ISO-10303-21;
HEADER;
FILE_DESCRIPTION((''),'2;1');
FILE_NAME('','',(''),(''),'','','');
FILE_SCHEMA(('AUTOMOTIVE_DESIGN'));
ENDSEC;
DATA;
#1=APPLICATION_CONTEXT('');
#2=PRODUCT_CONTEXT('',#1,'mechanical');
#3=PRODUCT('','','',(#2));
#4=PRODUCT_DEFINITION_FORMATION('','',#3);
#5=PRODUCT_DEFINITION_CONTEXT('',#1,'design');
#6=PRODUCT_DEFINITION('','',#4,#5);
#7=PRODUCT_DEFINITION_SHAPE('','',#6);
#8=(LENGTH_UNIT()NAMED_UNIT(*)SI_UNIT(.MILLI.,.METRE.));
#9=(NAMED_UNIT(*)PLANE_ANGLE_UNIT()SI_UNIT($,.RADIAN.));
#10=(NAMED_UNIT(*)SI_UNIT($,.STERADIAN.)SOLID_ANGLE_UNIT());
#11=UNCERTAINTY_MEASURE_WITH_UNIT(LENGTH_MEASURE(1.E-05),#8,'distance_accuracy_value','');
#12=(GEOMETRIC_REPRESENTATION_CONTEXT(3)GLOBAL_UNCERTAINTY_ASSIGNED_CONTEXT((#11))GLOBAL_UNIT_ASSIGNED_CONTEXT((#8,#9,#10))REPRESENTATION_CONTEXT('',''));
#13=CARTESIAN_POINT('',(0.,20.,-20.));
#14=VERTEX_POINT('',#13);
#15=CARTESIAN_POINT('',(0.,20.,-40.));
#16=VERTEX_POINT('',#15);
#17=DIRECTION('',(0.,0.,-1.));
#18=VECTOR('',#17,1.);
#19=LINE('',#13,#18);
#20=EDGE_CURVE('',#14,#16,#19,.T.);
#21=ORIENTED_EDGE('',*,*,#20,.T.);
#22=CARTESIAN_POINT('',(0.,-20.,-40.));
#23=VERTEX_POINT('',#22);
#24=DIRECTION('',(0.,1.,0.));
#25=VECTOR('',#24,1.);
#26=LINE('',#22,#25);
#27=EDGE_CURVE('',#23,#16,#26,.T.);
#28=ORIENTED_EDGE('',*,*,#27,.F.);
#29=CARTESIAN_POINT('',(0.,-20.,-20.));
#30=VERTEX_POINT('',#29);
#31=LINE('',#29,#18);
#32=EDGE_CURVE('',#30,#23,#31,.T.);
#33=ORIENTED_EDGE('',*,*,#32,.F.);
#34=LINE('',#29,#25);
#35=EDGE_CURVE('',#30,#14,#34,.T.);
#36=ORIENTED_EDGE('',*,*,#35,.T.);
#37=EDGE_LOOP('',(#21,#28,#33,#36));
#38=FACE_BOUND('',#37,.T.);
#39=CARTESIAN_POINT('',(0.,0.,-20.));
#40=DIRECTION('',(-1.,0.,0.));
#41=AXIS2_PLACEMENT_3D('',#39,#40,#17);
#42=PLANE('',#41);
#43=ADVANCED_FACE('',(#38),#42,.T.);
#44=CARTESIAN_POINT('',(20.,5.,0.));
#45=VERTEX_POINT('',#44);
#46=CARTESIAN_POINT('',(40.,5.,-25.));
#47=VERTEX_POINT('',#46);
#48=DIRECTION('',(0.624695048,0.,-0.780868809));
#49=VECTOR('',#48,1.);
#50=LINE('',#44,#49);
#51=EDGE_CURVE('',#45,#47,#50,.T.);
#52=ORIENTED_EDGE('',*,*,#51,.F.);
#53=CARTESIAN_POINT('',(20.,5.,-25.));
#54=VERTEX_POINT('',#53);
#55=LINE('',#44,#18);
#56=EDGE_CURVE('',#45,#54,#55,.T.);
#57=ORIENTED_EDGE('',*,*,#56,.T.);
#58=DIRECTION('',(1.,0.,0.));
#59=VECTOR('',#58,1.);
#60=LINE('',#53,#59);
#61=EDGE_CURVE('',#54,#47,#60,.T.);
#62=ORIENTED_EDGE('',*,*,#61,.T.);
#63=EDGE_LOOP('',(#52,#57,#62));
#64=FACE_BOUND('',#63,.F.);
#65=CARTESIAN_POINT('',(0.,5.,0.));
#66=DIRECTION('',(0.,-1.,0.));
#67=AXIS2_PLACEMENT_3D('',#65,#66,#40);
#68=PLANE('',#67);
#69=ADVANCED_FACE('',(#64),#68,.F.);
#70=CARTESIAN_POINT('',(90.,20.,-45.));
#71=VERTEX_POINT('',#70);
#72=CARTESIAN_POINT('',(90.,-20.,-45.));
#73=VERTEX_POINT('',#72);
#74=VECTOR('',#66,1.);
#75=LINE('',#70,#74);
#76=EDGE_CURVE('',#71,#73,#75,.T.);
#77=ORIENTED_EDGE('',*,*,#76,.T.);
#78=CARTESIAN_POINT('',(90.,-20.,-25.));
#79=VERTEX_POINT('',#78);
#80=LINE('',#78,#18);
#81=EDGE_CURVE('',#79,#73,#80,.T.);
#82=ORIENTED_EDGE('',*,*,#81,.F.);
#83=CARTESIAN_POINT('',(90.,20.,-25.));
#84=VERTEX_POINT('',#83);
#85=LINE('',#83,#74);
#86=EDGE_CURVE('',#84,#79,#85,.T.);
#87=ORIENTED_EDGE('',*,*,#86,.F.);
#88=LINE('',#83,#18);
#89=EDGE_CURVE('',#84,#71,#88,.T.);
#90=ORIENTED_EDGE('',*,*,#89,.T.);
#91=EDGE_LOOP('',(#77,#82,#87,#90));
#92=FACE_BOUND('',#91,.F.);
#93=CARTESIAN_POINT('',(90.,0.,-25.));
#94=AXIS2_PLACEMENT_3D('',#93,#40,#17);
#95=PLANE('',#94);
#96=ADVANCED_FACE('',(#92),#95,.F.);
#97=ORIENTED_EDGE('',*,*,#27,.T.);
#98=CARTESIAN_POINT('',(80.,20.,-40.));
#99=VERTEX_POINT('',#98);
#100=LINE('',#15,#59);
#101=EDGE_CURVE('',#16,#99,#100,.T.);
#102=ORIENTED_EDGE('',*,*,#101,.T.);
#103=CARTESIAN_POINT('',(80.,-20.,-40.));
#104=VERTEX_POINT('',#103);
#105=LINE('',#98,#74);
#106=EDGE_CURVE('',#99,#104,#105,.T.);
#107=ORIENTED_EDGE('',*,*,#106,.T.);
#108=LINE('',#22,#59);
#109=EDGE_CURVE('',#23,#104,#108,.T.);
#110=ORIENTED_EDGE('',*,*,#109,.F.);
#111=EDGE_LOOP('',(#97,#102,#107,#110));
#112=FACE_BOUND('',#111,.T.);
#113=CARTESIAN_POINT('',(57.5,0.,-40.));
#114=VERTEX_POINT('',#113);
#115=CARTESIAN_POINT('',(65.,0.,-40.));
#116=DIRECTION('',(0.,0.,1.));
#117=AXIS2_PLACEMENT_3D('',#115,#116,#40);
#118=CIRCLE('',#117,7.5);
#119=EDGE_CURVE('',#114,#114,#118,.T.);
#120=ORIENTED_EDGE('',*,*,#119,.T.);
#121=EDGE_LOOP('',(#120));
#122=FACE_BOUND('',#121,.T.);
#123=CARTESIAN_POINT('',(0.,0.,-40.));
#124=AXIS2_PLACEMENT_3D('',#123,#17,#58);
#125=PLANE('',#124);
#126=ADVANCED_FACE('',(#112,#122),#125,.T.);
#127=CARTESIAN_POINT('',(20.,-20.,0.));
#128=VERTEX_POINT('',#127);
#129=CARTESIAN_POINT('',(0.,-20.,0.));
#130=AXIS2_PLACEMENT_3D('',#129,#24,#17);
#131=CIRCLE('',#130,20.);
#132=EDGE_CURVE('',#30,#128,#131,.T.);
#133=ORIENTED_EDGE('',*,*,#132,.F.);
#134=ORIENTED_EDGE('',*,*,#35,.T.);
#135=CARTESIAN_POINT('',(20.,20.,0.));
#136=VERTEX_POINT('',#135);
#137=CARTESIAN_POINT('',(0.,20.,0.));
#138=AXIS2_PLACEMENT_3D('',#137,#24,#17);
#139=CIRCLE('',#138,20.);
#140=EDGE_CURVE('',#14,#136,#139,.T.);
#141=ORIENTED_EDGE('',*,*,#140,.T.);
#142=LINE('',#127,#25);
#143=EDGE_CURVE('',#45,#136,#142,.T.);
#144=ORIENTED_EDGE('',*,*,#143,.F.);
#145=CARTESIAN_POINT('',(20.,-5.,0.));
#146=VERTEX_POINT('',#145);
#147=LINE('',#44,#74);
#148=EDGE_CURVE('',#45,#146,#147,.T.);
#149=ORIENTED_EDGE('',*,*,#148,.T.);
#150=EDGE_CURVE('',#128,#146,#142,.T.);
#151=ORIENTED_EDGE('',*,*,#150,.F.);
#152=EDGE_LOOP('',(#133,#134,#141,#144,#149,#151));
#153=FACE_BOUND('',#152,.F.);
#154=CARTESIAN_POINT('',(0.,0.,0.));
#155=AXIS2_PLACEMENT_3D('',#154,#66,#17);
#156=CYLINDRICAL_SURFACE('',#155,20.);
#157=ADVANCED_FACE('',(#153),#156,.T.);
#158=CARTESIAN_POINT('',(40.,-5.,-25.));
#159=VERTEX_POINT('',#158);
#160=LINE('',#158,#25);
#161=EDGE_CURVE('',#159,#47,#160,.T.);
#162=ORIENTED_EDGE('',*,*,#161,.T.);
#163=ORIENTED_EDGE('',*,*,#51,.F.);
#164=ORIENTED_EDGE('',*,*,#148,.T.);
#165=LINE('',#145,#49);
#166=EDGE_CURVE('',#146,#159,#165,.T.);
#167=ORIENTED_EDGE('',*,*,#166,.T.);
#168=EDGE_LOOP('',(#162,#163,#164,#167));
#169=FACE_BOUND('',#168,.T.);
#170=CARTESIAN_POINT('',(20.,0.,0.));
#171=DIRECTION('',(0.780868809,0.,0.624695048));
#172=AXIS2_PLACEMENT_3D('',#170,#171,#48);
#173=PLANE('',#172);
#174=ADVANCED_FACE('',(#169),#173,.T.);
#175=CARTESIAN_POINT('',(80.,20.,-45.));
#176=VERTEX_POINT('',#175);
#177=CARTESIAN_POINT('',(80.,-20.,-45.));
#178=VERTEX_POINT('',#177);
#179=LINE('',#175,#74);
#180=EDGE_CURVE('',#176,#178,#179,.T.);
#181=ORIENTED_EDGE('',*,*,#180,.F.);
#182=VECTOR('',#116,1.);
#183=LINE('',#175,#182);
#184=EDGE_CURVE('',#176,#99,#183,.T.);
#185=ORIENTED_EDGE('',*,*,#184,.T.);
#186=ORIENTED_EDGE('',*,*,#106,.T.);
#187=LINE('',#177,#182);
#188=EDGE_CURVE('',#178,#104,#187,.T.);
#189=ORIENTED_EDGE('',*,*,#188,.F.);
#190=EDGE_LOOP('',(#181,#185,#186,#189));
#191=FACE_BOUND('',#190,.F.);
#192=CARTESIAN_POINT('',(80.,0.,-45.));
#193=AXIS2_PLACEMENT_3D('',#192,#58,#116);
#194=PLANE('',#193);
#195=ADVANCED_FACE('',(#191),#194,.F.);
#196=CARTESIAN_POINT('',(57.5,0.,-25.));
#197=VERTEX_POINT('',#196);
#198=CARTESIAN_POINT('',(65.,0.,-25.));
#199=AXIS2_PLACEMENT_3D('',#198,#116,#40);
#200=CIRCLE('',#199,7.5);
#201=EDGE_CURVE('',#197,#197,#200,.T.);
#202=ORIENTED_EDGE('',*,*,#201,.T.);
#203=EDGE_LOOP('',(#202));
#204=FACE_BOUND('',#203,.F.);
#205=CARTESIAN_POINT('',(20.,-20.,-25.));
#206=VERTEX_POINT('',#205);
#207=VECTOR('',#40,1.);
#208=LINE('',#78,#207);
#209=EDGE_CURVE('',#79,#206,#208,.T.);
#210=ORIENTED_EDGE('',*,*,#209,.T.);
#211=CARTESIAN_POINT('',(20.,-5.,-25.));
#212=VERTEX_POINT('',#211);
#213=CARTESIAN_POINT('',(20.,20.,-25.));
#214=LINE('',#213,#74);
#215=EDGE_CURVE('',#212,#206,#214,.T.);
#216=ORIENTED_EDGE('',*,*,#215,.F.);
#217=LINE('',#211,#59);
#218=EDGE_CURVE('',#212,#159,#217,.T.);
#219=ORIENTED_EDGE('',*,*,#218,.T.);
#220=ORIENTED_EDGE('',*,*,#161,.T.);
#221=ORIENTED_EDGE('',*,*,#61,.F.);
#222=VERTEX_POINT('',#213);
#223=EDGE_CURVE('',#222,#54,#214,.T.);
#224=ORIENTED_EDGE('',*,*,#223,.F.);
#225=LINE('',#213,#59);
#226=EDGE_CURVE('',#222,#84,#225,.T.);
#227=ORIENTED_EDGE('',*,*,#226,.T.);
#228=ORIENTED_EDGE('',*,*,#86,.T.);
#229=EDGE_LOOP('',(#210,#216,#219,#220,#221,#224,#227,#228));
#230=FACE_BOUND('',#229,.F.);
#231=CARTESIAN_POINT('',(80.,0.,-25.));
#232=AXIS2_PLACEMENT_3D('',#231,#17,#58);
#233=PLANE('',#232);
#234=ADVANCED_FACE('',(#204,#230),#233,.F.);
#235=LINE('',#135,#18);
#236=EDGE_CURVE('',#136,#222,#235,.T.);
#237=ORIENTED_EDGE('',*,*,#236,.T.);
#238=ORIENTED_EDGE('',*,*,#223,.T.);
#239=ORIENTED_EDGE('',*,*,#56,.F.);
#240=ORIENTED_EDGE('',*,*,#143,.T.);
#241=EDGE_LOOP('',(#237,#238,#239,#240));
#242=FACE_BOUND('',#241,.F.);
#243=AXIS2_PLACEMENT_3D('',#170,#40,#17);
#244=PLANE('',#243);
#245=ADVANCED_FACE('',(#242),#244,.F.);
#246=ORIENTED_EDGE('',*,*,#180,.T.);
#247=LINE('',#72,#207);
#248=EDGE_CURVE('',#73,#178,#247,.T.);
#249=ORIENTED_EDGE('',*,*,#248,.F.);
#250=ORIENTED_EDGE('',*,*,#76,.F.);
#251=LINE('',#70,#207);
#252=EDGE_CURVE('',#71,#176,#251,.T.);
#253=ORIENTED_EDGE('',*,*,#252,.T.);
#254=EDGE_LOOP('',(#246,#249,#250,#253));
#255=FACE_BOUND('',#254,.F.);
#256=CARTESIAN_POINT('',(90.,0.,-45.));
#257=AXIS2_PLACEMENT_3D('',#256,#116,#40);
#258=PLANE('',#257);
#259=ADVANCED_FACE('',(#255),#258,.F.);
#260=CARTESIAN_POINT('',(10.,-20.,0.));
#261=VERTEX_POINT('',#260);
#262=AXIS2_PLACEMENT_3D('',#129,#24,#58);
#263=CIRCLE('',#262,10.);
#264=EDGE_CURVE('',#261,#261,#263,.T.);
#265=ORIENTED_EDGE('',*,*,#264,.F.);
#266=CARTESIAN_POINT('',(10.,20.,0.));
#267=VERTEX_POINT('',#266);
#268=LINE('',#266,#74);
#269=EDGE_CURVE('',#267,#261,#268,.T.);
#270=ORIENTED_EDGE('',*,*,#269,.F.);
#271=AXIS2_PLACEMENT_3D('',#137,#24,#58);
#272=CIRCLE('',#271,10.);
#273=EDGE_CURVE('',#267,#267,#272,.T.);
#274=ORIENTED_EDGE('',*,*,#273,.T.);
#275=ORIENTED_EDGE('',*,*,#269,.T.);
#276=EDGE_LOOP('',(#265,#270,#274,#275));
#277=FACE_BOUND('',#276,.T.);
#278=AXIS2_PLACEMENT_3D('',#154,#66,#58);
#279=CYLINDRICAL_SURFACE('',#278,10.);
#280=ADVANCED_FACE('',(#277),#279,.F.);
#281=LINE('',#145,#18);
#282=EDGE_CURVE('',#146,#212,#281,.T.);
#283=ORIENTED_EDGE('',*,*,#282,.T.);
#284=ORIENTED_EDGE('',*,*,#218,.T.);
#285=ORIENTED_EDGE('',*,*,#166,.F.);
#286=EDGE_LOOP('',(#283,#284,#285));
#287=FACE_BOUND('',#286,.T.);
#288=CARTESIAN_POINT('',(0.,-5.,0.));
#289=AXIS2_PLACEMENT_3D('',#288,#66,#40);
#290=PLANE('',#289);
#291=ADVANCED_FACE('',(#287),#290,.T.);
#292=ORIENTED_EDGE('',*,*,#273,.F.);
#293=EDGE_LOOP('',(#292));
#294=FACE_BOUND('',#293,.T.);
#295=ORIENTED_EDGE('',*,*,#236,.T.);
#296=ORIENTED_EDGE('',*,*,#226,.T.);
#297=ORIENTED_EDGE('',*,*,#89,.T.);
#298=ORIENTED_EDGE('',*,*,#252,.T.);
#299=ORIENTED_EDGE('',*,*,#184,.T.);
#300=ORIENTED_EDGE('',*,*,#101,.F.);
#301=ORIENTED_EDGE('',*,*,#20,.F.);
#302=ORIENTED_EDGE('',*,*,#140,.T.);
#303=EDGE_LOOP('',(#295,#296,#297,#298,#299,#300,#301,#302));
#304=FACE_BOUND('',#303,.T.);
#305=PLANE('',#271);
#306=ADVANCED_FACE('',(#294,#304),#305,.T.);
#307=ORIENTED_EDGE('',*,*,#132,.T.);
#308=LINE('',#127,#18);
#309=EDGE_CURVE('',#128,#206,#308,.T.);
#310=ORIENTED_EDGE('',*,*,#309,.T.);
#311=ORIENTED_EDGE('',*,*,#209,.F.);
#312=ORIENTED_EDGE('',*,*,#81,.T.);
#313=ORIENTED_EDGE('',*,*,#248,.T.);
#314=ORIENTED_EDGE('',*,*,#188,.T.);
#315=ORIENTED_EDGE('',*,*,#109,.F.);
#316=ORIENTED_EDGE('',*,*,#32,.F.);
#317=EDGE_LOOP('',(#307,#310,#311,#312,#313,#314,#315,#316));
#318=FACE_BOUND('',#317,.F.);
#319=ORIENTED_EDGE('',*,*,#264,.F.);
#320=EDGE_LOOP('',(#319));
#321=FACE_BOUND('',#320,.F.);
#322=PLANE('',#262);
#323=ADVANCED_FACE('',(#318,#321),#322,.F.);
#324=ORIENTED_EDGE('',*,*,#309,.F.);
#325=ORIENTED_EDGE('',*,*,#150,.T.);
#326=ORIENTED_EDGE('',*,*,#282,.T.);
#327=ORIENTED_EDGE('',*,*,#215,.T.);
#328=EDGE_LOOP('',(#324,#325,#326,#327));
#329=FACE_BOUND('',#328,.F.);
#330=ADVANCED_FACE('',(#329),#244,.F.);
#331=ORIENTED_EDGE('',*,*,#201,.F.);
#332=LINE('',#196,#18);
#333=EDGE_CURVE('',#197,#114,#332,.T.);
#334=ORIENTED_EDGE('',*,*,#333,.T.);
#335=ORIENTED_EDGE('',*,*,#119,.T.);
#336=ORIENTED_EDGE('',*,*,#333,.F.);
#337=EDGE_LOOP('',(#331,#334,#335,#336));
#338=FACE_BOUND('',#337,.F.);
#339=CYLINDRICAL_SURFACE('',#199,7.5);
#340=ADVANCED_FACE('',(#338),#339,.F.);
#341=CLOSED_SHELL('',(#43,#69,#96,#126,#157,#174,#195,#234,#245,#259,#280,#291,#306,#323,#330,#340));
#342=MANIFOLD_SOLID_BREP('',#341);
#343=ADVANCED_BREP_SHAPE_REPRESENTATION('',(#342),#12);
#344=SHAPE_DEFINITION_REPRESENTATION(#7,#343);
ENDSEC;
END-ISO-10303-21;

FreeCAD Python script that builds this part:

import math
import FreeCAD as App
import Part
import Sketcher

V = App.Vector

doc = App.newDocument("Part")
body = doc.addObject("PartDesign::Body", "Body")

# Sketch on XZ plane
sketch1 = body.newObject("Sketcher::SketchObject", "Sketch")
sketch1.AttachmentSupport = (doc.getObject("XZ_Plane"), [""])
sketch1.MapMode = "FlatFace"
sketch1.addGeometry([
    Part.LineSegment(V(80, -40, 0), V(0, -40, 0)),  # 0
    Part.LineSegment(V(0, -40, 0), V(0, -20, 0)),  # 1
    Part.ArcOfCircle(Part.Circle(V(0, 0, 0), V(0, 0, 1), 20), math.radians(0), math.radians(270)),  # 2
    Part.LineSegment(V(20, 0, 0), V(20, -25, 0)),  # 3
    Part.LineSegment(V(20, -25, 0), V(90, -25, 0)),  # 4
    Part.LineSegment(V(90, -25, 0), V(90, -45, 0)),  # 5
    Part.LineSegment(V(90, -45, 0), V(80, -45, 0)),  # 6
    Part.LineSegment(V(80, -45, 0), V(80, -40, 0)),  # 7
    Part.Circle(V(0, 0, 0), V(0, 0, 1), 10),  # 8
], False)
sketch1.addConstraint([
    Sketcher.Constraint("Coincident", 0, 2, 1, 1),
    Sketcher.Constraint("Coincident", 1, 2, 2, 2),
    Sketcher.Constraint("Tangent", 2, 1, 3, 1),
    Sketcher.Constraint("Coincident", 3, 2, 4, 1),
    Sketcher.Constraint("Coincident", 4, 2, 5, 1),
    Sketcher.Constraint("Coincident", 5, 2, 6, 1),
    Sketcher.Constraint("Coincident", 6, 2, 7, 1),
    Sketcher.Constraint("Coincident", 7, 2, 0, 1),
    Sketcher.Constraint("Horizontal", 0),
    Sketcher.Constraint("Vertical", 1),
    Sketcher.Constraint("Vertical", 3),
    Sketcher.Constraint("Horizontal", 4),
    Sketcher.Constraint("Vertical", 5),
    Sketcher.Constraint("Horizontal", 6),
    Sketcher.Constraint("Vertical", 7),
    Sketcher.Constraint("Coincident", 2, 3, -1, 1),
    Sketcher.Constraint("Coincident", 8, 3, -1, 1),
    Sketcher.Constraint("PointOnObject", 0, 2, -2),
    Sketcher.Constraint("Equal", 1, 5),
    Sketcher.Constraint("Diameter", 8, 20.0),
    Sketcher.Constraint("Radius", 2, 20.0),
    Sketcher.Constraint("DistanceX", 0, 2, 0, 1, 80.0),
    Sketcher.Constraint("DistanceX", 6, 2, 6, 1, 10.0),
    Sketcher.Constraint("DistanceY", 1, 1, 1, 2, 20.0),
    Sketcher.Constraint("DistanceY", 7, 1, 7, 2, 5.0),
])
pad1 = body.newObject("PartDesign::Pad", "Pad")
pad1.Profile = sketch1
pad1.Length = 40
pad1.Midplane = True

# Sketch on XY plane
sketch2 = body.newObject("Sketcher::SketchObject", "Sketch001")
sketch2.AttachmentSupport = (doc.getObject("XY_Plane"), [""])
sketch2.MapMode = "FlatFace"
sketch2.AttachmentOffset = App.Placement(V(0, 0, -25), App.Rotation())
sketch2.addGeometry(Part.Circle(V(65, 0, 0), V(0, 0, 1), 7.5), False)
sketch2.addConstraint([
    Sketcher.Constraint("PointOnObject", 0, 3, -1),
    Sketcher.Constraint("Diameter", 0, 15.0),
    Sketcher.Constraint("DistanceX", -1, 1, 0, 3, 65.0),
])
pocket1 = body.newObject("PartDesign::Pocket", "Pocket")
pocket1.Profile = sketch2
pocket1.Length = 40

# Sketch on XZ plane
sketch3 = body.newObject("Sketcher::SketchObject", "Sketch002")
sketch3.AttachmentSupport = (doc.getObject("XZ_Plane"), [""])
sketch3.MapMode = "FlatFace"
sketch3.addGeometry([
    Part.LineSegment(V(40, -25, 0), V(20, 0, 0)),
    Part.LineSegment(V(20, 0, 0), V(20, -25, 0)),
    Part.LineSegment(V(20, -25, 0), V(40, -25, 0)),
], False)
sketch3.addConstraint([
    Sketcher.Constraint("Coincident", 0, 2, 1, 1),
    Sketcher.Constraint("Coincident", 1, 2, 2, 1),
    Sketcher.Constraint("Coincident", 2, 2, 0, 1),
    Sketcher.Constraint("Vertical", 1),
    Sketcher.Constraint("Horizontal", 2),
    Sketcher.Constraint("PointOnObject", 0, 2, -1),
    Sketcher.Constraint("DistanceX", 2, 1, 2, 2, 20.0),
    Sketcher.Constraint("DistanceY", 1, 2, 1, 1, 25.0),
    Sketcher.Constraint("DistanceX", -1, 1, 0, 2, 20.0),
])
pad2 = body.newObject("PartDesign::Pad", "Pad001")
pad2.Profile = sketch3
pad2.Length = 10
pad2.Midplane = True

doc.recompute()
